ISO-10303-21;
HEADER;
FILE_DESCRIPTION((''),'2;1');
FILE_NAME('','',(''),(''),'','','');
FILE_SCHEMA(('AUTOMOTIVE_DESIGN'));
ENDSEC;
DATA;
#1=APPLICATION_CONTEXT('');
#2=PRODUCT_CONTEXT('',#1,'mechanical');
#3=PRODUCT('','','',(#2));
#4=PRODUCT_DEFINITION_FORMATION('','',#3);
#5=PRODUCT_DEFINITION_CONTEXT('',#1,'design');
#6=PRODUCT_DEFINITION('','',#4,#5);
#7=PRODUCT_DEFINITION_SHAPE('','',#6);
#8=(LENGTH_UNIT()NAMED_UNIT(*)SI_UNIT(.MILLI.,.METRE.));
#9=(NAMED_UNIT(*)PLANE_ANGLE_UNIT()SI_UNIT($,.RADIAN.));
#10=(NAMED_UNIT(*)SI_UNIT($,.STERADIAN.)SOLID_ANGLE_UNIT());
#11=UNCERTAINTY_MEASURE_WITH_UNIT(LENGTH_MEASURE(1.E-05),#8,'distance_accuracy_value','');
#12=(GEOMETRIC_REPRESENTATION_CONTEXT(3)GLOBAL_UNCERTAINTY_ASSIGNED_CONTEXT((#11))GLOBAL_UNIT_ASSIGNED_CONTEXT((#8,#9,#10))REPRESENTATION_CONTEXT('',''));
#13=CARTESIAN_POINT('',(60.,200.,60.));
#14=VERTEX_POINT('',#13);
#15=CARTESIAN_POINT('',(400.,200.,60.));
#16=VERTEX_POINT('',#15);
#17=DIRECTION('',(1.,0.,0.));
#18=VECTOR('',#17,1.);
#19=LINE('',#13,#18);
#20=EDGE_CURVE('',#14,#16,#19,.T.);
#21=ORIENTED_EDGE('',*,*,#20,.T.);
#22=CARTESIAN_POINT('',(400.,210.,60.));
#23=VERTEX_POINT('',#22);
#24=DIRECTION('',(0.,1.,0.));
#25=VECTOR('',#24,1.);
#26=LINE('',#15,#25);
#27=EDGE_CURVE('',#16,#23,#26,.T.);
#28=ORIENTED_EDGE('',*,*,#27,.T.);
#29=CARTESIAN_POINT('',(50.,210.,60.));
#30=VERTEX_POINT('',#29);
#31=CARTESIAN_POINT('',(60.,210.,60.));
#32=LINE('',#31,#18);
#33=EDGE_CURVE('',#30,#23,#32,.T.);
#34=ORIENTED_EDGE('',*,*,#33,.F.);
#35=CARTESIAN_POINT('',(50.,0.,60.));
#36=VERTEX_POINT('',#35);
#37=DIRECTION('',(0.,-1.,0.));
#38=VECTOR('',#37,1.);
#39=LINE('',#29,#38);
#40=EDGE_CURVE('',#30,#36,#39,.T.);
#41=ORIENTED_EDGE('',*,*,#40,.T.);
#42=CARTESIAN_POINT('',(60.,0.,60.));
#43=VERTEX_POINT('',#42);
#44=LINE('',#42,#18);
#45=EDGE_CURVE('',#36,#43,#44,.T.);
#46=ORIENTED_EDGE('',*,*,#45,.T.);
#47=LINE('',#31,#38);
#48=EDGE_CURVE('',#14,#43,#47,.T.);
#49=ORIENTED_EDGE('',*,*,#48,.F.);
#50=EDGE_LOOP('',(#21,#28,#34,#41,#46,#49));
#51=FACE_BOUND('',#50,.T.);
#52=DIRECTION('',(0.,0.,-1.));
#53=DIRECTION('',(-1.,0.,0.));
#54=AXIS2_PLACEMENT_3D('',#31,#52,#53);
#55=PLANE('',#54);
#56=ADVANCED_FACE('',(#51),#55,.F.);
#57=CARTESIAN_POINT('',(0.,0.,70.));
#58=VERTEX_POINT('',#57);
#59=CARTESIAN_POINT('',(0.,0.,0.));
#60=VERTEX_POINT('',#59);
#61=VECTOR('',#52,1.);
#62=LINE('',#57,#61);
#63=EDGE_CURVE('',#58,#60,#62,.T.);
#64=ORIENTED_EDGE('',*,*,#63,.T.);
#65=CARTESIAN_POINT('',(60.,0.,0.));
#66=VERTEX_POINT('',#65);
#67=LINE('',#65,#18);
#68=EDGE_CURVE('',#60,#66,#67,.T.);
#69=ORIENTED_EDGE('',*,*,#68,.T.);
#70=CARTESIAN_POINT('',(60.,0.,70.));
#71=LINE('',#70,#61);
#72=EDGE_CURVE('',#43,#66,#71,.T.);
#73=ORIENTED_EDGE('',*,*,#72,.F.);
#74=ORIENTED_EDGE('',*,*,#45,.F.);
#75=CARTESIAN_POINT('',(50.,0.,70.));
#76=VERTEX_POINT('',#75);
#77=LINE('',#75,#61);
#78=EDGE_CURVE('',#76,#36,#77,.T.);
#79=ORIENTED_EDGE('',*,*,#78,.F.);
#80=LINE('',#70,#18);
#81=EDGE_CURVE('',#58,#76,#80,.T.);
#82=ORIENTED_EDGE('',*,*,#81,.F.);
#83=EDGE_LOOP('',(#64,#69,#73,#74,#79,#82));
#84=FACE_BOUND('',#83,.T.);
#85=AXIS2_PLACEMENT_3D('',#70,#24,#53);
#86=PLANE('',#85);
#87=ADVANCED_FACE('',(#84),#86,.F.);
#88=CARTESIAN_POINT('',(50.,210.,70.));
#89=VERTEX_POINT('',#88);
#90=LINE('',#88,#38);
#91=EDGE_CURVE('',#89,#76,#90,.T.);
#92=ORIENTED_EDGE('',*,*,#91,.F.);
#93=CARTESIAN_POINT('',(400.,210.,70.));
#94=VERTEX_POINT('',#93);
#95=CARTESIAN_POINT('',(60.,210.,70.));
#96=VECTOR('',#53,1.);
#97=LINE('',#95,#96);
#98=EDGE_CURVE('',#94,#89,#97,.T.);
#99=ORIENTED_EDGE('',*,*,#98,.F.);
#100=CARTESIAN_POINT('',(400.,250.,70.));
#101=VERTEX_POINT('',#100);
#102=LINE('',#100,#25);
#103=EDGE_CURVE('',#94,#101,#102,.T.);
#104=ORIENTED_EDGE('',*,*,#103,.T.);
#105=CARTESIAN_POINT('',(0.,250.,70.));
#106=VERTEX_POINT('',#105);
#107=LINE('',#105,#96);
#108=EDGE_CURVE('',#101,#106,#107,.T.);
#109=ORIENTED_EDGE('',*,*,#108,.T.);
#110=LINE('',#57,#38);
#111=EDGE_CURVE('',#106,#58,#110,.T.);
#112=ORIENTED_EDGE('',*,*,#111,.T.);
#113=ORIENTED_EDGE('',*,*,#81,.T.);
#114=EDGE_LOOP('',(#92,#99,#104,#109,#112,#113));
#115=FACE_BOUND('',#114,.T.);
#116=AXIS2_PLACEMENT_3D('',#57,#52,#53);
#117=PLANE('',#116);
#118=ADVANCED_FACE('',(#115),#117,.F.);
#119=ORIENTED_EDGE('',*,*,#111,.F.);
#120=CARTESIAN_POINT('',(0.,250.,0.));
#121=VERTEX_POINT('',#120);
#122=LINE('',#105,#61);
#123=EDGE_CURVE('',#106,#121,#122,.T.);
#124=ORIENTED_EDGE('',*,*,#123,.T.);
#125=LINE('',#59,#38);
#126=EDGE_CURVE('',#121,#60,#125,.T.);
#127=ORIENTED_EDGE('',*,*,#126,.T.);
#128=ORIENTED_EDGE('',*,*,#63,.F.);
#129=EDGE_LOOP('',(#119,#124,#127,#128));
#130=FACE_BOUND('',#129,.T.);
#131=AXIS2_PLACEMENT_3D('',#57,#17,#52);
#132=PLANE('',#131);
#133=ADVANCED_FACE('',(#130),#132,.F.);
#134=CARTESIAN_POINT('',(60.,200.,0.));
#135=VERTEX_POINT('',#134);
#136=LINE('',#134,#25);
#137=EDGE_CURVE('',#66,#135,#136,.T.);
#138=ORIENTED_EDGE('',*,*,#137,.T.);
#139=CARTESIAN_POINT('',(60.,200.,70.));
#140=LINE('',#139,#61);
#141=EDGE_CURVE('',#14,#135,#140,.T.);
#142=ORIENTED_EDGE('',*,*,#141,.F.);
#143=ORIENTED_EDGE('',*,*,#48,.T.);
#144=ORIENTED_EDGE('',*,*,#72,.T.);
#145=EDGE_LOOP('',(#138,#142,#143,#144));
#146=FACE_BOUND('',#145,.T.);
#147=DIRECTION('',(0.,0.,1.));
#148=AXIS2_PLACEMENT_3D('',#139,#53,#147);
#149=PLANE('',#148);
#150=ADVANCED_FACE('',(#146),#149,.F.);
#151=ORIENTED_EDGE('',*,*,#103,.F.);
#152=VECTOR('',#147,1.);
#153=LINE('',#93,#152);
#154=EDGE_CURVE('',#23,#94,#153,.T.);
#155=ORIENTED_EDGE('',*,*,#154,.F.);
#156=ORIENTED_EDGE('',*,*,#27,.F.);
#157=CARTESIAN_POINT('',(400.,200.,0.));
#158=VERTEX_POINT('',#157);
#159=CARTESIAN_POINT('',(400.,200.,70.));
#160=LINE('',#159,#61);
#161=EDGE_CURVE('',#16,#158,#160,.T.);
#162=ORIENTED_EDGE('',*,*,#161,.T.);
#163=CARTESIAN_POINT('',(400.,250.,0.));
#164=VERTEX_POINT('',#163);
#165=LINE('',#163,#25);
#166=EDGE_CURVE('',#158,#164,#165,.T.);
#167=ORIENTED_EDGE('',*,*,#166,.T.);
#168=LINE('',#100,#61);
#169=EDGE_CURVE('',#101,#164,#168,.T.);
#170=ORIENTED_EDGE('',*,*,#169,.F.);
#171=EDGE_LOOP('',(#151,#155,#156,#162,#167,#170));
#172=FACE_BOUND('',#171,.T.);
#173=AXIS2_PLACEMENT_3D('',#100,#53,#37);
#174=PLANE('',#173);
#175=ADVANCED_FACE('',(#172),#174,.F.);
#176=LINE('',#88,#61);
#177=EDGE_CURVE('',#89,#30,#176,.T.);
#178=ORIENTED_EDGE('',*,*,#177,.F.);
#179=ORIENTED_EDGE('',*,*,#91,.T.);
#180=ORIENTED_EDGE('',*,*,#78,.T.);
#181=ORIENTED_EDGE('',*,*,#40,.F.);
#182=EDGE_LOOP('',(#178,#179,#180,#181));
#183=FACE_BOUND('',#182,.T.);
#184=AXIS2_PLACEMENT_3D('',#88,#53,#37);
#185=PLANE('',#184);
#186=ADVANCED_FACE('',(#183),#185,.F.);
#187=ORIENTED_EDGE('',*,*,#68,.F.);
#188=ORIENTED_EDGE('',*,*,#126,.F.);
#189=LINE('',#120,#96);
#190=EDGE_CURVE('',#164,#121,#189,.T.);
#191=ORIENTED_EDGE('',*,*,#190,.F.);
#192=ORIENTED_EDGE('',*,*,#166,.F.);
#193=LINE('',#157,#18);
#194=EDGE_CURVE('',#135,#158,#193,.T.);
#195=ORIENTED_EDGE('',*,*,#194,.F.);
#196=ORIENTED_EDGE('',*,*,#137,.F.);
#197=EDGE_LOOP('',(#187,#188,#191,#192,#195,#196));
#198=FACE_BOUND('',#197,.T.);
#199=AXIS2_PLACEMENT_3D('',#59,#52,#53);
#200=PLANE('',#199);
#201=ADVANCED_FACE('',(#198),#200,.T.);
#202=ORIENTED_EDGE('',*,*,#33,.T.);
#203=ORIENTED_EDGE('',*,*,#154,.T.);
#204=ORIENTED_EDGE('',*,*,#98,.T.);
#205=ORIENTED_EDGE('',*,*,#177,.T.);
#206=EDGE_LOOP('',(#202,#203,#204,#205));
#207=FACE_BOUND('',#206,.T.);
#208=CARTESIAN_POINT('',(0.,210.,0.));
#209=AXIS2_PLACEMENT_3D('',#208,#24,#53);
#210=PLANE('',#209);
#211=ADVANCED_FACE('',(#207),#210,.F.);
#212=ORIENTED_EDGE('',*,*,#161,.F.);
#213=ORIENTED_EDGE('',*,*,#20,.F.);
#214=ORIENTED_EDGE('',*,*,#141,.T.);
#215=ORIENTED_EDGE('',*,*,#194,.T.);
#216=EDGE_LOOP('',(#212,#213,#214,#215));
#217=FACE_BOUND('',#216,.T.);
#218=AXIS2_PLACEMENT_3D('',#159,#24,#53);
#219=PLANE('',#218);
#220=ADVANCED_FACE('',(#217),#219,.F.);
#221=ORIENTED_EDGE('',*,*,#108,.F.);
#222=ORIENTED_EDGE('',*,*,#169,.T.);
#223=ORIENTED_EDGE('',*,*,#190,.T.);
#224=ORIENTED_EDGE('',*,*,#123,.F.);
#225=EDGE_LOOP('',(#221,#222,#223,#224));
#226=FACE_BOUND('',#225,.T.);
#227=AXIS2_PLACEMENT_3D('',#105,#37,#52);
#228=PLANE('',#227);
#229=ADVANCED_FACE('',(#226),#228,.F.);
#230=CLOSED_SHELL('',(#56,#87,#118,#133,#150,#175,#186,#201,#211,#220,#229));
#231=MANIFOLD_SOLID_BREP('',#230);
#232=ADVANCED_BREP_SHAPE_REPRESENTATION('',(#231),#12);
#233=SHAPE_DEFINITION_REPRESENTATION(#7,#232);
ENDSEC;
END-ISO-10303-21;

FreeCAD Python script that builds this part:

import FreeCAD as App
import Part
import Sketcher
from FreeCAD import Vector


def add_polygon(sketch, points):
    """Adds a closed chain of lines whose ends are joined by coincident constraints."""
    first, n = sketch.GeometryCount, len(points)
    for a, b in zip(points, points[1:] + points[:1]):
        sketch.addGeometry(Part.LineSegment(App.Vector(*a, 0), App.Vector(*b, 0)), False)
    for i in range(n):
        sketch.addConstraint(Sketcher.Constraint("Coincident", first + i, 2, first + (i + 1) % n, 1))

doc = App.newDocument("Part")
body = doc.addObject("PartDesign::Body", "Body")

# Sketch on XY plane
sketch1 = doc.addObject("Sketcher::SketchObject", "Sketch")
body.addObject(sketch1)
sketch1.AttachmentSupport = (doc.XY_Plane, [""])
sketch1.MapMode = "FlatFace"
add_polygon(sketch1, [(0, 250), (0, 0), (60, 0), (60, 200), (400, 200), (400, 250)])  # lines 0-5
sketch1.addConstraint([
    Sketcher.Constraint("Vertical", 0),
    Sketcher.Constraint("Horizontal", 1),
    Sketcher.Constraint("Vertical", 2),
    Sketcher.Constraint("Horizontal", 3),
    Sketcher.Constraint("Vertical", 4),
    Sketcher.Constraint("Horizontal", 5),
    Sketcher.Constraint("Coincident", 0, 2, -1, 1),
    Sketcher.Constraint("DistanceX", 1, 1, 1, 2, 60.0),
    Sketcher.Constraint("DistanceX", 3, 1, 3, 2, 340.0),
    Sketcher.Constraint("DistanceY", 0, 2, 0, 1, 250.0),
    Sketcher.Constraint("DistanceY", 2, 1, 2, 2, 200.0),
])
pad1 = doc.addObject("PartDesign::Pad", "Pad")
body.addObject(pad1)
pad1.Profile = sketch1
pad1.Length = 70

# Sketch on XZ plane
sketch2 = doc.addObject("Sketcher::SketchObject", "Sketch001")
body.addObject(sketch2)
sketch2.AttachmentSupport = (doc.XZ_Plane, [""])
sketch2.MapMode = "FlatFace"
add_polygon(sketch2, [(50, 70), (50, 60), (60, 60), (60, 70)])  # lines 0-3
sketch2.addConstraint([
    Sketcher.Constraint("Vertical", 0),
    Sketcher.Constraint("Horizontal", 1),
    Sketcher.Constraint("Vertical", 2),
    Sketcher.Constraint("Horizontal", 3),
    Sketcher.Constraint("Equal", 3, 0),
    Sketcher.Constraint("DistanceX", 1, 1, 1, 2, 10.0),
    Sketcher.Constraint("DistanceX", -1, 1, 0, 2, 50.0),
    Sketcher.Constraint("DistanceY", -1, 1, 0, 2, 60.0),
])
pocket1 = doc.addObject("PartDesign::Pocket", "Pocket")
body.addObject(pocket1)
pocket1.Profile = sketch2
pocket1.Length = 210

# Sketch on YZ plane
sketch3 = doc.addObject("Sketcher::SketchObject", "Sketch002")
body.addObject(sketch3)
sketch3.AttachmentSupport = (doc.YZ_Plane, [""])
sketch3.MapMode = "FlatFace"
sketch3.AttachmentOffset = App.Placement(Vector(0, 0, 400), App.Rotation())
add_polygon(sketch3, [(210, 70), (200, 70), (200, 60), (210, 60)])  # lines 0-3
sketch3.addConstraint([
    Sketcher.Constraint("Horizontal", 0),
    Sketcher.Constraint("Vertical", 1),
    Sketcher.Constraint("Horizontal", 2),
    Sketcher.Constraint("Vertical", 3),
    Sketcher.Constraint("Equal", 2, 1),
    Sketcher.Constraint("DistanceX", 0, 2, 0, 1, 10.0),
    Sketcher.Constraint("DistanceX", -1, 1, 0, 2, 200.0),
    Sketcher.Constraint("DistanceY", -1, 1, 0, 2, 70.0),
])
pocket2 = doc.addObject("PartDesign::Pocket", "Pocket001")
body.addObject(pocket2)
pocket2.Profile = sketch3
pocket2.Length = 340

doc.recompute()
